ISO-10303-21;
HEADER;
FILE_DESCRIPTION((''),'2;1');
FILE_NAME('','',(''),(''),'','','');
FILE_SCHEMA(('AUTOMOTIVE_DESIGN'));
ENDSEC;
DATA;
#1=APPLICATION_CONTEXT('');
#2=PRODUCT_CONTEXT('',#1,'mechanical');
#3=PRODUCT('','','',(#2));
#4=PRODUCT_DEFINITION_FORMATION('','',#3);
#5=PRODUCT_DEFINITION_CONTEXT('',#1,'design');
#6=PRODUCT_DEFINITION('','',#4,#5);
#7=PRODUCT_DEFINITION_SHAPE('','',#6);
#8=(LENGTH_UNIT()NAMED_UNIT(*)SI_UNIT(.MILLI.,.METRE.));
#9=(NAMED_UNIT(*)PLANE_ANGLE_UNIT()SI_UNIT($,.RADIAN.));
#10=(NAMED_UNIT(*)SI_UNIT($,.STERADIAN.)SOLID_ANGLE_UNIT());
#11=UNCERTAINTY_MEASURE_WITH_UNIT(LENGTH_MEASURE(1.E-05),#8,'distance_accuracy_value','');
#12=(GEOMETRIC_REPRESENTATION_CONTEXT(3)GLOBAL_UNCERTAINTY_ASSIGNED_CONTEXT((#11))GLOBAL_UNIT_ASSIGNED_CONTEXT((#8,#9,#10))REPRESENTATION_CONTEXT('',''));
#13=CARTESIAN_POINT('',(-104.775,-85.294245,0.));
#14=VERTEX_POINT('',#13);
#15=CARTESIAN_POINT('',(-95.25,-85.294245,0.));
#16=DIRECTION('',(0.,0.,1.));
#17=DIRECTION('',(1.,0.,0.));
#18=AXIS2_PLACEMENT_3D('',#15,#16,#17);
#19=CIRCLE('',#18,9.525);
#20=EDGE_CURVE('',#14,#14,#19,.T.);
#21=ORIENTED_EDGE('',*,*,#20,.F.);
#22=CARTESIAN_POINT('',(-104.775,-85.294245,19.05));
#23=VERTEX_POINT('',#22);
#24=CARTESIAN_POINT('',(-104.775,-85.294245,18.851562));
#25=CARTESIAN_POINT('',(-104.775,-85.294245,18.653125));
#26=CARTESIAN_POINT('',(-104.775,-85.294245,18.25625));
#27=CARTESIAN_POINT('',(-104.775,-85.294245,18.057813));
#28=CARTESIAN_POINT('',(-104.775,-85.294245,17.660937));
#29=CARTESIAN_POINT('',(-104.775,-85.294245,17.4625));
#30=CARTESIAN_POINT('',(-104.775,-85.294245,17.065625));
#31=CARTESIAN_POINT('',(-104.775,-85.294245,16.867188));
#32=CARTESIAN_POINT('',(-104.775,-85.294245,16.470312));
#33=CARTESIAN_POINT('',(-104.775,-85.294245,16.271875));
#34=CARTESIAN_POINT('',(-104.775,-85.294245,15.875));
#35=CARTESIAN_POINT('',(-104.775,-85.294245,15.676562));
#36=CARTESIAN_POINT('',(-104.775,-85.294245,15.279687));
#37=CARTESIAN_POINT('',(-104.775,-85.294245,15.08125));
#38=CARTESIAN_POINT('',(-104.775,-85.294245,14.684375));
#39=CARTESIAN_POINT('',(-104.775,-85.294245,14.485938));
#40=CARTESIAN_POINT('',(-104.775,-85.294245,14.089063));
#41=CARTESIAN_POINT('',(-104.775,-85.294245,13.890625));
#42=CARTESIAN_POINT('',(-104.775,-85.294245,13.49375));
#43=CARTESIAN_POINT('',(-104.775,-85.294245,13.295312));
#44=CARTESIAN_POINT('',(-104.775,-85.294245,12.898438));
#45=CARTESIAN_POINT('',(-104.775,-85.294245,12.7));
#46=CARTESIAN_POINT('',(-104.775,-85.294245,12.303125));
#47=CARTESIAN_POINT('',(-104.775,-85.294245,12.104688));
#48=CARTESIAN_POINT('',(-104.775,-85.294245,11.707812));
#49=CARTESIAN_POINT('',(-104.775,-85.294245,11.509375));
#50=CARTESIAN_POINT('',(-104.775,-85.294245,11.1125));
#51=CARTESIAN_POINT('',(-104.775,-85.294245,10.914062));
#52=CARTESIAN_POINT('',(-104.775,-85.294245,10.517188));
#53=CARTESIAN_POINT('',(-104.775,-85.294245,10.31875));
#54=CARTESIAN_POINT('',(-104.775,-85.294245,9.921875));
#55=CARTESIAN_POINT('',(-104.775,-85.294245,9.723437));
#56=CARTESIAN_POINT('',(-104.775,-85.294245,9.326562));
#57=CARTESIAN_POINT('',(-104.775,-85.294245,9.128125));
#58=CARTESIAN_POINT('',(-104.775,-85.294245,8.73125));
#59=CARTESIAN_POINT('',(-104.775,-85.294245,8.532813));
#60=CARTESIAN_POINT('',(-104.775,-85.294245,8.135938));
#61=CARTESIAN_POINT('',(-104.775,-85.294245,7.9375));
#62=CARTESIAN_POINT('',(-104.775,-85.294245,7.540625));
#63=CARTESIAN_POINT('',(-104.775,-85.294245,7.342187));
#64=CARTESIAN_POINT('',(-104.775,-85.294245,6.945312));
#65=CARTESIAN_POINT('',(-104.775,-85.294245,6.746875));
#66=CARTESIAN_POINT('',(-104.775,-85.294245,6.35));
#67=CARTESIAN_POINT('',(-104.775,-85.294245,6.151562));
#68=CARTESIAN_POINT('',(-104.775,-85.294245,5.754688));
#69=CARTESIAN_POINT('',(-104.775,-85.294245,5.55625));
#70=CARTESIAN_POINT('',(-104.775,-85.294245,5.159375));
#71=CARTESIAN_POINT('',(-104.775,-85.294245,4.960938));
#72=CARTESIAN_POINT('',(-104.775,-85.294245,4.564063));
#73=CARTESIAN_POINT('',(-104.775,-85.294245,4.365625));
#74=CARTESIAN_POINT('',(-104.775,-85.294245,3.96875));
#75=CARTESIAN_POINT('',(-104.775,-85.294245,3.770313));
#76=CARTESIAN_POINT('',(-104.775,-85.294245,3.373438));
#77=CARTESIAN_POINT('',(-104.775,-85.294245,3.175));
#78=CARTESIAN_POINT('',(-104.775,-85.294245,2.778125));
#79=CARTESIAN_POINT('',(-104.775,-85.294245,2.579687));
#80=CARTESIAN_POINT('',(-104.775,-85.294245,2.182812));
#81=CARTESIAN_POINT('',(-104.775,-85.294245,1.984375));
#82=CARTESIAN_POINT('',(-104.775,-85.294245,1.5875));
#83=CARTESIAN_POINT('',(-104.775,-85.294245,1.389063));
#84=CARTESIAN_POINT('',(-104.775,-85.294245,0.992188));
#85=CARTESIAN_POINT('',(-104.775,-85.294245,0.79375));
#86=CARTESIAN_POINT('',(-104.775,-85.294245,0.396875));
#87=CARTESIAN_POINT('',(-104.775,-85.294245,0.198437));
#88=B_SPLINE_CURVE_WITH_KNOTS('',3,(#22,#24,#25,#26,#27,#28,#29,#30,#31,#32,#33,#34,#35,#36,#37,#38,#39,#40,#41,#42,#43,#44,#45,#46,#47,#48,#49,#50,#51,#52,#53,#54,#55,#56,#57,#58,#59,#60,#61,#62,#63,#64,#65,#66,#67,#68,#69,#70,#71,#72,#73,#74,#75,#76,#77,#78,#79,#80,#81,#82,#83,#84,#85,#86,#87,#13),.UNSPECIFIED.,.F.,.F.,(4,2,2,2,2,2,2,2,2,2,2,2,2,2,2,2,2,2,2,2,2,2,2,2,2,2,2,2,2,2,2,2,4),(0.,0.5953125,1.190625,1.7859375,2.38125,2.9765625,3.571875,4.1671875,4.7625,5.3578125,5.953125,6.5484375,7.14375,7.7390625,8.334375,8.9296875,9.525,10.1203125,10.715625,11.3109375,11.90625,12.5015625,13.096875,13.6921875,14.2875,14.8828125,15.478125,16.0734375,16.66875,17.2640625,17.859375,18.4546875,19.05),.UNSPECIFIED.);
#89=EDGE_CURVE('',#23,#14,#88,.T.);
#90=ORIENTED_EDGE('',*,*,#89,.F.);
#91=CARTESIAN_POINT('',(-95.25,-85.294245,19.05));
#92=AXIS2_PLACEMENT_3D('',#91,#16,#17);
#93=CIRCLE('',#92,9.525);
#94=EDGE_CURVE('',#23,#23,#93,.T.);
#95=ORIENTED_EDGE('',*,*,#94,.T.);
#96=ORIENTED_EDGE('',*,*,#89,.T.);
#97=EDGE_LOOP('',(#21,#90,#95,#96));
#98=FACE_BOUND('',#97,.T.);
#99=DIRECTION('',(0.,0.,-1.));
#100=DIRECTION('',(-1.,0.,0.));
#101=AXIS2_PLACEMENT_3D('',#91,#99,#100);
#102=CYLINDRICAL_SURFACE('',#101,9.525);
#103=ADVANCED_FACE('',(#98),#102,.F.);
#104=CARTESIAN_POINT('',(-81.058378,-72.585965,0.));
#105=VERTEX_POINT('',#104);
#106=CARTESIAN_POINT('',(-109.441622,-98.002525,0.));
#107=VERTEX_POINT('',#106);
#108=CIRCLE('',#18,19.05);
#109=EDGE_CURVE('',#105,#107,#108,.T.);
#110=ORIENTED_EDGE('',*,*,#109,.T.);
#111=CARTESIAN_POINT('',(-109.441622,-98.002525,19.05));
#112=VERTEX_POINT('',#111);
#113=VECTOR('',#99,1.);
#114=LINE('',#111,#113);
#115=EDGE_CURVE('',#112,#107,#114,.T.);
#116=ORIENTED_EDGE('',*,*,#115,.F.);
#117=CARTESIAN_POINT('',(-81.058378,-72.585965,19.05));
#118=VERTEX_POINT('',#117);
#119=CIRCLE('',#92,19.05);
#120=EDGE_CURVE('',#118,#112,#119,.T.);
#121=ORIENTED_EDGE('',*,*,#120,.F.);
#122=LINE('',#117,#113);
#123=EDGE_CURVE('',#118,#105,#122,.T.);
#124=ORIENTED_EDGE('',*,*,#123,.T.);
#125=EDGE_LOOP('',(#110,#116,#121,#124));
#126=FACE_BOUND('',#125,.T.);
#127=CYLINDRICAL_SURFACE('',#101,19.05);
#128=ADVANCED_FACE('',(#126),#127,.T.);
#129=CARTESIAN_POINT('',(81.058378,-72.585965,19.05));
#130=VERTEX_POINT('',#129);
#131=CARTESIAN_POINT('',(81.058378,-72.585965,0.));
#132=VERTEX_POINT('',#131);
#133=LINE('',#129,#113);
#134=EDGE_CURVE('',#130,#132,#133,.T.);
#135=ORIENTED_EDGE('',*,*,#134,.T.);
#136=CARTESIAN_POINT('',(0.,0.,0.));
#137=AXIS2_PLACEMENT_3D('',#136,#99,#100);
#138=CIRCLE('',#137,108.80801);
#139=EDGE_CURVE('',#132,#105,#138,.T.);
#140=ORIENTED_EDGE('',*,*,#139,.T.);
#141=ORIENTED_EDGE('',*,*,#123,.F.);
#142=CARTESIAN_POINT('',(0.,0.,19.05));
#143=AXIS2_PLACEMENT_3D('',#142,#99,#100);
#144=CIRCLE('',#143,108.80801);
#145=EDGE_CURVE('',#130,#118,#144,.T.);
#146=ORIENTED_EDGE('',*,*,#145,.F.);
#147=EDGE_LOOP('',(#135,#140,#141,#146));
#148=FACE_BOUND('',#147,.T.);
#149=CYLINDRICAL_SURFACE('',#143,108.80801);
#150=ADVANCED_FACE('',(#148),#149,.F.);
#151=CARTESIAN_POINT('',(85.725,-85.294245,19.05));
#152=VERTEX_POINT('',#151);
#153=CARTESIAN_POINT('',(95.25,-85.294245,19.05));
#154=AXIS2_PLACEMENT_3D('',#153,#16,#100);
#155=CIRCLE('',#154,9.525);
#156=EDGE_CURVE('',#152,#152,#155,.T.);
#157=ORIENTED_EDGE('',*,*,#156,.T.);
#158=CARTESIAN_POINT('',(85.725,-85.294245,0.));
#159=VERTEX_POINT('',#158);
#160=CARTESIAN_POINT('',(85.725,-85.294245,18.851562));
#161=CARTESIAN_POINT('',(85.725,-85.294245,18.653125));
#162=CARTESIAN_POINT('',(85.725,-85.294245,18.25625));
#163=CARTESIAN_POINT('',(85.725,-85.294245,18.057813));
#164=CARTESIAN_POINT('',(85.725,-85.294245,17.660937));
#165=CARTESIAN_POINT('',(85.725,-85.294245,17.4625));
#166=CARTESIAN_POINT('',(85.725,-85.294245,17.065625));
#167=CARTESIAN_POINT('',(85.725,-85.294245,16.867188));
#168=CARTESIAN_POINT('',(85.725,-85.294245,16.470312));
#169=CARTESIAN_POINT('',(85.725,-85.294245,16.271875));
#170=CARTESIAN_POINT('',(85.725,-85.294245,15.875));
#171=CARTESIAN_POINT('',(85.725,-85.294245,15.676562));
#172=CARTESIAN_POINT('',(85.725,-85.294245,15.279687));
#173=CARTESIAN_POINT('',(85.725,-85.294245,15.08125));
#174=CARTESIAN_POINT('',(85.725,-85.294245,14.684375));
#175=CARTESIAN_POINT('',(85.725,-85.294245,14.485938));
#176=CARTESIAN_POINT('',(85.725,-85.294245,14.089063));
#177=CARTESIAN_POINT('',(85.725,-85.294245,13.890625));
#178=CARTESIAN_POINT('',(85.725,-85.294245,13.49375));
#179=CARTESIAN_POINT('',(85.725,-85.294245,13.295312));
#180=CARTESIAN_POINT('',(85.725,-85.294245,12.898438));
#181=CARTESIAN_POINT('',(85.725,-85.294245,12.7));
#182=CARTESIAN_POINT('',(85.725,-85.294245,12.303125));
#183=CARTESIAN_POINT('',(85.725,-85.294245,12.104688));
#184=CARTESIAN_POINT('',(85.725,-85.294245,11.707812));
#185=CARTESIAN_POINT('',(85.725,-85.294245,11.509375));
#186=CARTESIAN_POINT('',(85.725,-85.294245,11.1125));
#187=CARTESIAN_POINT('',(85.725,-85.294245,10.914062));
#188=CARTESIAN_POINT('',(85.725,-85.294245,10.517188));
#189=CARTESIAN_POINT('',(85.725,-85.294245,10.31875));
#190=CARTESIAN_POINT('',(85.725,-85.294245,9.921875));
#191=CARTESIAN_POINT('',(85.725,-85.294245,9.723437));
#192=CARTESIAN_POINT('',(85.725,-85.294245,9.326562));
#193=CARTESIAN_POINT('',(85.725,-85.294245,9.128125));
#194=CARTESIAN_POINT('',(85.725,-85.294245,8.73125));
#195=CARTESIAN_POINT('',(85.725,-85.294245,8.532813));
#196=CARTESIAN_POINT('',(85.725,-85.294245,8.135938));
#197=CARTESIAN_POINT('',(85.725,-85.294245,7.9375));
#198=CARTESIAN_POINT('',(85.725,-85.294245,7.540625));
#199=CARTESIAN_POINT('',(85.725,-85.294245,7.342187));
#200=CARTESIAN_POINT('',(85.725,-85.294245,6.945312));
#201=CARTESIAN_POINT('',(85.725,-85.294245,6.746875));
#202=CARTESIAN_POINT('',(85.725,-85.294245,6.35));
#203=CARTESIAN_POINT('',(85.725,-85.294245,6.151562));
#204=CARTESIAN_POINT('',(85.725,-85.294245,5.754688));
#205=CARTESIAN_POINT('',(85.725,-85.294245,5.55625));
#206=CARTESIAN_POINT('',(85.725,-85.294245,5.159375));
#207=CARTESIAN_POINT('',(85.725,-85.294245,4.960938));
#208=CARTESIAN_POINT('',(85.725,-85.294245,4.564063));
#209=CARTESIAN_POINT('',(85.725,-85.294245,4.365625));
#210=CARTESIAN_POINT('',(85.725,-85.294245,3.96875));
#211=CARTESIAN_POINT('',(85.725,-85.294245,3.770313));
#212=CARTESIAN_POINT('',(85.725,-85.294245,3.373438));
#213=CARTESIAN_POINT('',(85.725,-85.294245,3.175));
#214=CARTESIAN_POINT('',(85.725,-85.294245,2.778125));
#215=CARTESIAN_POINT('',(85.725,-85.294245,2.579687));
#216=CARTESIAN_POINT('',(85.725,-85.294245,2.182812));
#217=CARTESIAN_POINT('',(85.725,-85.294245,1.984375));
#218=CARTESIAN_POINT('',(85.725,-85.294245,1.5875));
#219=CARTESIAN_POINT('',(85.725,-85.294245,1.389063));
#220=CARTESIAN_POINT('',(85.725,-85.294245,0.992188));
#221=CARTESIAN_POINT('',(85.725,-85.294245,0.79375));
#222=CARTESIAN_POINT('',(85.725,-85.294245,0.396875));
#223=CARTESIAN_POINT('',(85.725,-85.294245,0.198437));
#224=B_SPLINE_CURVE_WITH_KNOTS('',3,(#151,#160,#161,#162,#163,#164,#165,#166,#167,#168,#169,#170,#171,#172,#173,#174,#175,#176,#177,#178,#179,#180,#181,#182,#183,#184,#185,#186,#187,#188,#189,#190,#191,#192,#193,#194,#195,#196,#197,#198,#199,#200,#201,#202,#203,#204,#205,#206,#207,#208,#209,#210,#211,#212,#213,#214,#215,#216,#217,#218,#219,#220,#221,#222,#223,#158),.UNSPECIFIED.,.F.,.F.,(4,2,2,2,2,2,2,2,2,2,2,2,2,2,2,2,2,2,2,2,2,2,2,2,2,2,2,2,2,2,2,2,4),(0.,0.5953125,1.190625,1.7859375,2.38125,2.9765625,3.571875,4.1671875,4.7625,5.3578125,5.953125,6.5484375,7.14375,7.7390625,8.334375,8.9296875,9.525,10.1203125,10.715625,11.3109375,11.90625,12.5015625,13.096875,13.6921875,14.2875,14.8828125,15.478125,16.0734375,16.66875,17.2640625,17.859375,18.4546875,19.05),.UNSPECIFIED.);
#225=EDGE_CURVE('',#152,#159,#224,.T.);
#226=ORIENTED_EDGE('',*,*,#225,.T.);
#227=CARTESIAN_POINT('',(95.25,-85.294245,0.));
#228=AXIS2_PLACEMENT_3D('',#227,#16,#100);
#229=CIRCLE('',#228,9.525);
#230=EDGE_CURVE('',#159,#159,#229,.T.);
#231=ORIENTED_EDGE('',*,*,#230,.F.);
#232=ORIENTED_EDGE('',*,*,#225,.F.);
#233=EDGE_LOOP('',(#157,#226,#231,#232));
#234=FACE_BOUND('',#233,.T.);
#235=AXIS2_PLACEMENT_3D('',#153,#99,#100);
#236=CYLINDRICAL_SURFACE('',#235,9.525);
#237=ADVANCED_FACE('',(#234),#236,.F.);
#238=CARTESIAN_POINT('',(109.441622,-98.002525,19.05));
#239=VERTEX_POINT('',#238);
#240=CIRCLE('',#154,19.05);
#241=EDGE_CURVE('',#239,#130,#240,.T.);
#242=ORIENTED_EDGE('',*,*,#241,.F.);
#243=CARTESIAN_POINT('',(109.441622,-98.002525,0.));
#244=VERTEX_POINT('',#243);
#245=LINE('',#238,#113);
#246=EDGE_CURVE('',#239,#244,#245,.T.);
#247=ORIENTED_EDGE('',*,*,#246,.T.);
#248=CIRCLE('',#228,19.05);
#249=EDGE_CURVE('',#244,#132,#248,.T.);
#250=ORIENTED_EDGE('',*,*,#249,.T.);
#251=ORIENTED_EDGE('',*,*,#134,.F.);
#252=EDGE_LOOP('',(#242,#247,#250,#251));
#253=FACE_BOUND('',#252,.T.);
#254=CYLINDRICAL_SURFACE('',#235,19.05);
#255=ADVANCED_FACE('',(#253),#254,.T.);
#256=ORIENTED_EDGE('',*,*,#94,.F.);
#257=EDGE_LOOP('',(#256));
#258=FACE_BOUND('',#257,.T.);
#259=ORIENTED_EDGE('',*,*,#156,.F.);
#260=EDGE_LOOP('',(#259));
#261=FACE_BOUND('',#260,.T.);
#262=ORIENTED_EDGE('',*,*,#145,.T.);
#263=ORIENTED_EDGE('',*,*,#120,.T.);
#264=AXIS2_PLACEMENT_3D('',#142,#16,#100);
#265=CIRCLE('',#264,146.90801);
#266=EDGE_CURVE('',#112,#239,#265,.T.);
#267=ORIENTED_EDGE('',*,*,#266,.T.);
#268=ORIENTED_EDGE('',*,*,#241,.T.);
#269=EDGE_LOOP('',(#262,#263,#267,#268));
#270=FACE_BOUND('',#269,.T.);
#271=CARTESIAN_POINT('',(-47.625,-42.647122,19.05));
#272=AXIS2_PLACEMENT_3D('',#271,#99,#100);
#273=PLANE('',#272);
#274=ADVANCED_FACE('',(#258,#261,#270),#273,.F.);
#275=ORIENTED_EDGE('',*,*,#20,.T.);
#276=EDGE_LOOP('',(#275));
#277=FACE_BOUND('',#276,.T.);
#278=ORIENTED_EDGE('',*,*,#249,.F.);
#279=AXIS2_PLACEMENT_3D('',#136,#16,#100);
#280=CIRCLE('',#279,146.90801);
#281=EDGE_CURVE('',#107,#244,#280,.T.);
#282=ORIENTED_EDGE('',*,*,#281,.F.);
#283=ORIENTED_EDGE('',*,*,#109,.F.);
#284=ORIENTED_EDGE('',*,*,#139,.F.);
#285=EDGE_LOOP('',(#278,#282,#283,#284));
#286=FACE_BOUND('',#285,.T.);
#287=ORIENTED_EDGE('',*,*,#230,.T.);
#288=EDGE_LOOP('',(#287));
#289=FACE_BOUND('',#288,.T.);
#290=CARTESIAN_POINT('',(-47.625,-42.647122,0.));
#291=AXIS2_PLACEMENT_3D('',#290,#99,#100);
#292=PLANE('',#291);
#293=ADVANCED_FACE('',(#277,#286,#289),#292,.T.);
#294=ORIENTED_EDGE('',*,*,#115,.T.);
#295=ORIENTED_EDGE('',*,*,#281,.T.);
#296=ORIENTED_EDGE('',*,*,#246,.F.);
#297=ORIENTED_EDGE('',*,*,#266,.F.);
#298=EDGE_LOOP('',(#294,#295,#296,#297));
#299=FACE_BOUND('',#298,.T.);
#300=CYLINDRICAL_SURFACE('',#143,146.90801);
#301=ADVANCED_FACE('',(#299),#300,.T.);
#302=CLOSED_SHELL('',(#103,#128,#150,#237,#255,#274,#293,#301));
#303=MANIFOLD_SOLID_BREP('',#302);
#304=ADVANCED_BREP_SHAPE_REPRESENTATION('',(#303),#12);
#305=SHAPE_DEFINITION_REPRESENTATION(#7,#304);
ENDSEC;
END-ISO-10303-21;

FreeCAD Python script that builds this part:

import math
import FreeCAD as App
import Part
import Sketcher
from FreeCAD import Vector
Q = App.Units.Quantity

doc = App.newDocument("Part")
body = doc.addObject("PartDesign::Body", "Body")

# Sketch on XY plane
sketch1 = body.newObject("Sketcher::SketchObject", "Sketch")
sketch1.AttachmentSupport = (doc.getObject("XY_Plane"), [""])
sketch1.MapMode = "FlatFace"
sketch1.addGeometry([
    Part.ArcOfCircle(Part.Circle(Vector(95, -85, 0), Vector(0, 0, 1), 19), math.radians(-42), math.radians(138)),  # 0
    Part.ArcOfCircle(Part.Circle(Vector(0, 0, 0), Vector(0, 0, 1), 109), math.radians(-138), math.radians(-42)),  # 1
    Part.ArcOfCircle(Part.Circle(Vector(-95, -85, 0), Vector(0, 0, 1), 19), math.radians(42), math.radians(222)),  # 2
    Part.ArcOfCircle(Part.Circle(Vector(0, 0, 0), Vector(0, 0, 1), 147), math.radians(-138), math.radians(-42)),  # 3
    Part.Circle(Vector(95, -85, 0), Vector(0, 0, 1), 10),  # 4
    Part.Circle(Vector(-95, -85, 0), Vector(0, 0, 1), 10),  # 5
], False)
sketch1.addConstraint([
    Sketcher.Constraint("Tangent", 0, 2, 1, 2),
    Sketcher.Constraint("Tangent", 1, 1, 2, 1),
    Sketcher.Constraint("Tangent", 2, 2, 3, 1),
    Sketcher.Constraint("Tangent", 3, 2, 0, 1),
    Sketcher.Constraint("Coincident", 1, 3, -1, 1),
    Sketcher.Constraint("Coincident", 3, 3, -1, 1),
    Sketcher.Constraint("Coincident", 4, 3, 0, 3),
    Sketcher.Constraint("Coincident", 5, 3, 2, 3),
    Sketcher.Constraint("Equal", 4, 5),
    Sketcher.Constraint("Horizontal", 0, 3, 2, 3),
    Sketcher.Constraint("Diameter", 4, Q("0.75 in")),
    Sketcher.Constraint("Radius", 0, Q("0.75 in")),
    Sketcher.Constraint("DistanceX", 2, 3, 0, 3, Q("7.5 in")),
    Sketcher.Constraint("Radius", 1, Q("108.80801 mm")),
])
pad1 = body.newObject("PartDesign::Pad", "Pad")
pad1.Profile = sketch1
pad1.Length = Q("0.75 in")

doc.recompute()
